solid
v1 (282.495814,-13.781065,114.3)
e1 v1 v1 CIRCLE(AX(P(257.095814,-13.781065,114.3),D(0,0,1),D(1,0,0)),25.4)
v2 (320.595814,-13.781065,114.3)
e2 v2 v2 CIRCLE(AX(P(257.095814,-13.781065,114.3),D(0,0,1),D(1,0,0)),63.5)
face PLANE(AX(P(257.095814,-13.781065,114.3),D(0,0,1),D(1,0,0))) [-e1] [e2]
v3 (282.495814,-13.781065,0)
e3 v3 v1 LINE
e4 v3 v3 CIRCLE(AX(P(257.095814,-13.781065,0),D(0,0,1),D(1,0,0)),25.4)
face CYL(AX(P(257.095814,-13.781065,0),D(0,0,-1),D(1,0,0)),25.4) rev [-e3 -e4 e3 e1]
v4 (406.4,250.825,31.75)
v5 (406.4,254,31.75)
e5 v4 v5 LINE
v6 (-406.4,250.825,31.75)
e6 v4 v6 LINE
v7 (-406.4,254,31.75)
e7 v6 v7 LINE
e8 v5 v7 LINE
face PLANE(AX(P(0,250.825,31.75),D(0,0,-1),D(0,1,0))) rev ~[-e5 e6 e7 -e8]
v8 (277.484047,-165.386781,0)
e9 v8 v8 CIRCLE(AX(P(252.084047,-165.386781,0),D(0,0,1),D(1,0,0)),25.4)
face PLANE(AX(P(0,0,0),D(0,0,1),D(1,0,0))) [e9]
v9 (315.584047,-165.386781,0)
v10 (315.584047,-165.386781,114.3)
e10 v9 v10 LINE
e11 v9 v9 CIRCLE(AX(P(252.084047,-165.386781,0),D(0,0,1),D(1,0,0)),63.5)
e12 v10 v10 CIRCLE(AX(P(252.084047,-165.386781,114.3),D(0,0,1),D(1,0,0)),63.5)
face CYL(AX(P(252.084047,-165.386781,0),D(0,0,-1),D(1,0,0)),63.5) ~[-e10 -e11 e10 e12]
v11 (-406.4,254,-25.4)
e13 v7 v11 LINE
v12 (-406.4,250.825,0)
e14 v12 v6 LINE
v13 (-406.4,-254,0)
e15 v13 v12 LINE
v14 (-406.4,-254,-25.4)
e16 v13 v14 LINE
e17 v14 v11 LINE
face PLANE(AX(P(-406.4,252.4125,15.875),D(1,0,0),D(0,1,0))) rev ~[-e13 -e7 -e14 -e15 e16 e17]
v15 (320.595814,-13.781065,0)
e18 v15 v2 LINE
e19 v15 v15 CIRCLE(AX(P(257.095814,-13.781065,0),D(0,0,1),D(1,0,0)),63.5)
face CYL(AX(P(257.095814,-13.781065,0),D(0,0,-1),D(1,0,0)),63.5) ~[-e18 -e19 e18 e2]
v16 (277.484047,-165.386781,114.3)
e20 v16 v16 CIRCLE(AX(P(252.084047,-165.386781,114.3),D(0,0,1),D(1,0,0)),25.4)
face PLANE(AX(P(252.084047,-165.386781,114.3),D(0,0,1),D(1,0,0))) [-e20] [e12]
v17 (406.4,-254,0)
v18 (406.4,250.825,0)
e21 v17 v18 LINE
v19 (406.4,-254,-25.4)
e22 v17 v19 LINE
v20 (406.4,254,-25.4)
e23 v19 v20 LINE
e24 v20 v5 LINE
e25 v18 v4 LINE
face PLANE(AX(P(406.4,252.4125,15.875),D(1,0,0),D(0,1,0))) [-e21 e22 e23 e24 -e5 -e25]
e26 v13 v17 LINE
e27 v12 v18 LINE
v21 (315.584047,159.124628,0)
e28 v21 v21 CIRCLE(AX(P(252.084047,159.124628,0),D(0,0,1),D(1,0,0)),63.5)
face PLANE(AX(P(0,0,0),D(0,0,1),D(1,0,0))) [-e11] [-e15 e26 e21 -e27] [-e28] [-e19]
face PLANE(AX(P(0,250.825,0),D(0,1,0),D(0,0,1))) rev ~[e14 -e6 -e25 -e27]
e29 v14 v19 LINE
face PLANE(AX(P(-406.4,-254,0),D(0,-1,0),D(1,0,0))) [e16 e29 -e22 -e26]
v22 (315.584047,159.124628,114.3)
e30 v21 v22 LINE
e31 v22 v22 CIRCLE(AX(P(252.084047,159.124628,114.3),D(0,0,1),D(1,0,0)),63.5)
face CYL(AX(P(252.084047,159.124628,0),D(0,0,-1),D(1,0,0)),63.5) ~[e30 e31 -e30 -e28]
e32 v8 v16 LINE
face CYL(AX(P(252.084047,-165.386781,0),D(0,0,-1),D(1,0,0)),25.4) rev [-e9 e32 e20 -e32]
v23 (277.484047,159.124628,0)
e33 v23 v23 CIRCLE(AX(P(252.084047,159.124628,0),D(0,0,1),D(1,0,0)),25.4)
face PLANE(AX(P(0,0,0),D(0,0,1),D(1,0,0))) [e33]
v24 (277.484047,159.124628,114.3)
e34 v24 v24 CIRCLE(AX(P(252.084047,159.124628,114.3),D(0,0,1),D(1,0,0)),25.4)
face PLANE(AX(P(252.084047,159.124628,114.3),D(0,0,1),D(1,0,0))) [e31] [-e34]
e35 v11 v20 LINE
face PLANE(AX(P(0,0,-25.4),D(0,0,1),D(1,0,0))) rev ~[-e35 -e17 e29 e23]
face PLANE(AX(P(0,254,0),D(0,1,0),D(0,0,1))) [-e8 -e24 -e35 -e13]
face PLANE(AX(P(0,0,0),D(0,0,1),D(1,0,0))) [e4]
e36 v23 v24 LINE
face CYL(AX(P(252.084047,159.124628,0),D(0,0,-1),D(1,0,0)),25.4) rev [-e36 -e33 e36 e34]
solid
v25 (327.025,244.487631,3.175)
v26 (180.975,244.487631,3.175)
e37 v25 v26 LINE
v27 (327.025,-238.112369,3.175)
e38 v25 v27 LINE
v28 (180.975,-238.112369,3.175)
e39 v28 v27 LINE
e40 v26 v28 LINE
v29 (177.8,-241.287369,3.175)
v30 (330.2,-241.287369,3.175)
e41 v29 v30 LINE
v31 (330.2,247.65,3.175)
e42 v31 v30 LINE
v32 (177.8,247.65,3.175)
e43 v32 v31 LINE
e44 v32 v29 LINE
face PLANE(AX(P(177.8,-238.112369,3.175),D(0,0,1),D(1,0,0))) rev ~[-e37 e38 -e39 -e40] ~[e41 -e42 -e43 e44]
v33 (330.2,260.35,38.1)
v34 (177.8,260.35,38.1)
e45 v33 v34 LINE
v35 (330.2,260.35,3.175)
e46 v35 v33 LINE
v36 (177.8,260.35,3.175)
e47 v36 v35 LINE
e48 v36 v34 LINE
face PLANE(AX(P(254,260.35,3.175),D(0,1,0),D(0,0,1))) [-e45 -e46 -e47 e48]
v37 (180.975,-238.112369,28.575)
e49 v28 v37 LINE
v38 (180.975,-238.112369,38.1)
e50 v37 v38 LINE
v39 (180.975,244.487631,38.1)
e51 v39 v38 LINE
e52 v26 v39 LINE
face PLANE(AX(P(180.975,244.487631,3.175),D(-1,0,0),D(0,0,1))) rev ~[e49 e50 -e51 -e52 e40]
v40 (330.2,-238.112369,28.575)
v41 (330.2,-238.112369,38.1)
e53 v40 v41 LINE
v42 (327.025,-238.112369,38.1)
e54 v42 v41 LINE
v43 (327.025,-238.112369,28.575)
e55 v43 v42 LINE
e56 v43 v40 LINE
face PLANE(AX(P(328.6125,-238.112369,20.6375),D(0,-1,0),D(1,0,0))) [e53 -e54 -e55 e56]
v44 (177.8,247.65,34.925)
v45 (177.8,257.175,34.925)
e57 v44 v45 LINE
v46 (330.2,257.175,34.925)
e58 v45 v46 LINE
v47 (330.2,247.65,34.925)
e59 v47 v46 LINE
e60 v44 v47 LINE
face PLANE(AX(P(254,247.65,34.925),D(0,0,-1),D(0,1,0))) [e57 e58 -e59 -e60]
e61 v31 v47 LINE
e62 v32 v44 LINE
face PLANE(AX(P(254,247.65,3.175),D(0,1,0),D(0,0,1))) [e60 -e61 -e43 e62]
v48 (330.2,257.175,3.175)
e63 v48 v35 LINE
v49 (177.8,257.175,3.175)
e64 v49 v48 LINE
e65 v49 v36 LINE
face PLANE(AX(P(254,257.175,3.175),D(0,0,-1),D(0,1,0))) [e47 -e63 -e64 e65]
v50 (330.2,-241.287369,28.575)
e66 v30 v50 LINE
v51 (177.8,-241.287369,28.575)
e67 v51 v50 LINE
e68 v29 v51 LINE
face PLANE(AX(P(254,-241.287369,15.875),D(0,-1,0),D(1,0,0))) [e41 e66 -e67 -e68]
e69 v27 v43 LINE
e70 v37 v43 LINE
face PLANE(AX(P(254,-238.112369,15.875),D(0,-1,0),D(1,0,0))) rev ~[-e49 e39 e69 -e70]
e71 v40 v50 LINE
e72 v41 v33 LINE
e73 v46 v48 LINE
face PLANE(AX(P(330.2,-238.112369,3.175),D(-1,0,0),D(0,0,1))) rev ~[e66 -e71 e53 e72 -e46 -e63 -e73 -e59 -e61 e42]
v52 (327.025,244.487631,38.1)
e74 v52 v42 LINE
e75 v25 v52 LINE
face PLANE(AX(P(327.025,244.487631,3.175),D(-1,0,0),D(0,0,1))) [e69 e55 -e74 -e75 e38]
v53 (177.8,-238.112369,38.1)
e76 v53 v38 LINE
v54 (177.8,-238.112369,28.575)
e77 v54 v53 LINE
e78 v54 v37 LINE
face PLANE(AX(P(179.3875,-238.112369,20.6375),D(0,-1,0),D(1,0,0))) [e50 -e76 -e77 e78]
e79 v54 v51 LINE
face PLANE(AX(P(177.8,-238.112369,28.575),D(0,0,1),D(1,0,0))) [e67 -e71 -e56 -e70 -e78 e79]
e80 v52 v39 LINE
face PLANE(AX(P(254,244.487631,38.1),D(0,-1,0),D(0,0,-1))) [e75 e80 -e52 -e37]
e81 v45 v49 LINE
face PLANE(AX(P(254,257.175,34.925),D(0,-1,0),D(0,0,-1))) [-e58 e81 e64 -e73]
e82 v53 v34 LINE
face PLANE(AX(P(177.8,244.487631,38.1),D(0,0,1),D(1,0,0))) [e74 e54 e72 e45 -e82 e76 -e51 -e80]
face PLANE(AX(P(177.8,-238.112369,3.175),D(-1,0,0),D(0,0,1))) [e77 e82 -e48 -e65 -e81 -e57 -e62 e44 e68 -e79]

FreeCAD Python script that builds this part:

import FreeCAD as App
import Part
import Sketcher
from FreeCAD import Vector
Q = App.Units.Quantity

doc = App.newDocument("Part")
body = doc.addObject("PartDesign::Body", "Body")

# Sketch on XY plane
sketch1 = body.newObject("Sketcher::SketchObject", "Sketch")
sketch1.AttachmentSupport = (doc.getObject("XY_Plane"), [""])
sketch1.MapMode = "FlatFace"
sketch1.addGeometry(Part.LineSegment(Vector(-406.4, 254, 0), Vector(-406.4, -254, 0)), False)
sketch1.addGeometry(Part.LineSegment(Vector(-406.4, -254, 0), Vector(406.4, -254, 0)), False)
sketch1.addGeometry(Part.LineSegment(Vector(406.4, -254, 0), Vector(406.4, 254, 0)), False)
sketch1.addGeometry(Part.LineSegment(Vector(406.4, 254, 0), Vector(-406.4, 254, 0)), False)
sketch1.addConstraint(Sketcher.Constraint("Coincident", 0, 2, 1, 1))
sketch1.addConstraint(Sketcher.Constraint("Coincident", 1, 2, 2, 1))
sketch1.addConstraint(Sketcher.Constraint("Coincident", 2, 2, 3, 1))
sketch1.addConstraint(Sketcher.Constraint("Coincident", 3, 2, 0, 1))
sketch1.addConstraint(Sketcher.Constraint("Vertical", 0))
sketch1.addConstraint(Sketcher.Constraint("Horizontal", 1))
sketch1.addConstraint(Sketcher.Constraint("Vertical", 2))
sketch1.addConstraint(Sketcher.Constraint("Horizontal", 3))
sketch1.addConstraint(Sketcher.Constraint("Symmetric", 0, 2, 2, 2, -1, 1))
sketch1.addConstraint(Sketcher.Constraint("DistanceX", 1, 1, 1, 2, Q("32 in")))
sketch1.addConstraint(Sketcher.Constraint("DistanceY", 0, 2, 0, 1, Q("20 in")))
pad1 = body.newObject("PartDesign::Pad", "Pad")
pad1.Profile = sketch1
pad1.Length = Q("1 in")
pad1.Reversed = True

# Sketch on YZ plane
sketch2 = body.newObject("Sketcher::SketchObject", "Sketch001")
sketch2.AttachmentSupport = (doc.getObject("YZ_Plane"), [""])
sketch2.MapMode = "FlatFace"
sketch2.addGeometry(Part.LineSegment(Vector(250.825, 31.75, 0), Vector(250.825, 0, 0)), False)
sketch2.addGeometry(Part.LineSegment(Vector(250.825, 0, 0), Vector(254, 0, 0)), False)
sketch2.addGeometry(Part.LineSegment(Vector(254, 0, 0), Vector(254, 31.75, 0)), False)
sketch2.addGeometry(Part.LineSegment(Vector(254, 31.75, 0), Vector(250.825, 31.75, 0)), False)
sketch2.addConstraint(Sketcher.Constraint("Coincident", 0, 2, 1, 1))
sketch2.addConstraint(Sketcher.Constraint("Coincident", 1, 2, 2, 1))
sketch2.addConstraint(Sketcher.Constraint("Coincident", 2, 2, 3, 1))
sketch2.addConstraint(Sketcher.Constraint("Coincident", 3, 2, 0, 1))
sketch2.addConstraint(Sketcher.Constraint("Vertical", 0))
sketch2.addConstraint(Sketcher.Constraint("Horizontal", 1))
sketch2.addConstraint(Sketcher.Constraint("Vertical", 2))
sketch2.addConstraint(Sketcher.Constraint("Horizontal", 3))
sketch2.addConstraint(Sketcher.Constraint("PointOnObject", 0, 2, -1))
sketch2.addConstraint(Sketcher.Constraint("DistanceX", -1, 1, 1, 2, Q("10 in")))
sketch2.addConstraint(Sketcher.Constraint("DistanceY", 0, 2, 0, 1, Q("1.25 in")))
sketch2.addConstraint(Sketcher.Constraint("DistanceX", 1, 1, 1, 2, Q("0.125 in")))
pad2 = body.newObject("PartDesign::Pad", "Pad001")
pad2.Profile = sketch2
pad2.Length = Q("32 in")
pad2.Midplane = True

# Sketch on XY plane
sketch3 = body.newObject("Sketcher::SketchObject", "Sketch002")
sketch3.AttachmentSupport = (doc.getObject("XY_Plane"), [""])
sketch3.MapMode = "FlatFace"
sketch3.addGeometry(Part.Circle(Vector(252.084047, 159.124628, 0), Vector(0, 0, 1), 63.5), False)
sketch3.addGeometry(Part.Circle(Vector(252.084047, 159.124628, 0), Vector(0, 0, 1), 25.4), False)
sketch3.addGeometry(Part.Circle(Vector(257.095814, -13.781065, 0), Vector(0, 0, 1), 63.5), False)
sketch3.addGeometry(Part.Circle(Vector(257.095814, -13.781065, 0), Vector(0, 0, 1), 25.4), False)
sketch3.addGeometry(Part.Circle(Vector(252.084047, -165.386781, 0), Vector(0, 0, 1), 63.5), False)
sketch3.addGeometry(Part.Circle(Vector(252.084047, -165.386781, 0), Vector(0, 0, 1), 25.4), False)
sketch3.addConstraint(Sketcher.Constraint("Coincident", 1, 3, 0, 3))
sketch3.addConstraint(Sketcher.Constraint("Coincident", 3, 3, 2, 3))
sketch3.addConstraint(Sketcher.Constraint("Coincident", 5, 3, 4, 3))
sketch3.addConstraint(Sketcher.Constraint("Equal", 0, 2))
sketch3.addConstraint(Sketcher.Constraint("Equal", 1, 3))
sketch3.addConstraint(Sketcher.Constraint("Equal", 2, 4))
sketch3.addConstraint(Sketcher.Constraint("Equal", 3, 5))
sketch3.addConstraint(Sketcher.Constraint("Vertical", 1, 3, 4, 3))
sketch3.addConstraint(Sketcher.Constraint("Diameter", 0, Q("5 in")))
sketch3.addConstraint(Sketcher.Constraint("Diameter", 1, Q("2 in")))
sketch3.addConstraint(Sketcher.Constraint("DistanceY", -1, 1, 0, 3, 159.124628))
sketch3.addConstraint(Sketcher.Constraint("DistanceY", 4, 3, -1, 1, 165.386781))
sketch3.addConstraint(Sketcher.Constraint("DistanceX", -1, 1, 0, 3, 252.084047))
sketch3.addConstraint(Sketcher.Constraint("DistanceX", -1, 1, 2, 3, 257.095814))
sketch3.addConstraint(Sketcher.Constraint("DistanceY", 2, 3, -1, 1, 13.781065))
pad3 = body.newObject("PartDesign::Pad", "Pad002")
pad3.Profile = sketch3
pad3.Length = Q("4.5 in")
body2 = doc.addObject("PartDesign::Body", "Body001")

# Sketch on YZ plane
sketch4 = body2.newObject("Sketcher::SketchObject", "Sketch003")
sketch4.AttachmentSupport = (doc.getObject("YZ_Plane001"), [""])
sketch4.MapMode = "FlatFace"
sketch4.AttachmentOffset = App.Placement(Vector(0, 0, 10 * 25.4), App.Rotation())
sketch4.addGeometry(Part.LineSegment(Vector(244.487631, 3.175, 0), Vector(247.65, 3.175, 0)), False)
sketch4.addGeometry(Part.LineSegment(Vector(247.65, 3.175, 0), Vector(247.65, 34.925, 0)), False)
sketch4.addGeometry(Part.LineSegment(Vector(247.65, 34.925, 0), Vector(257.175, 34.925, 0)), False)
sketch4.addGeometry(Part.LineSegment(Vector(257.175, 34.925, 0), Vector(257.175, 3.175, 0)), False)
sketch4.addGeometry(Part.LineSegment(Vector(257.175, 3.175, 0), Vector(260.35, 3.175, 0)), False)
sketch4.addGeometry(Part.LineSegment(Vector(260.35, 3.175, 0), Vector(260.35, 38.1, 0)), False)
sketch4.addGeometry(Part.LineSegment(Vector(260.35, 38.1, 0), Vector(244.487631, 38.1, 0)), False)
sketch4.addGeometry(Part.LineSegment(Vector(244.487631, 38.1, 0), Vector(244.487631, 3.175, 0)), False)
sketch4.addConstraint(Sketcher.Constraint("Coincident", 0, 2, 1, 1))
sketch4.addConstraint(Sketcher.Constraint("Coincident", 1, 2, 2, 1))
sketch4.addConstraint(Sketcher.Constraint("Coincident", 2, 2, 3, 1))
sketch4.addConstraint(Sketcher.Constraint("Coincident", 3, 2, 4, 1))
sketch4.addConstraint(Sketcher.Constraint("Coincident", 4, 2, 5, 1))
sketch4.addConstraint(Sketcher.Constraint("Coincident", 5, 2, 6, 1))
sketch4.addConstraint(Sketcher.Constraint("Coincident", 6, 2, 7, 1))
sketch4.addConstraint(Sketcher.Constraint("Coincident", 7, 2, 0, 1))
sketch4.addConstraint(Sketcher.Constraint("Horizontal", 0))
sketch4.addConstraint(Sketcher.Constraint("Vertical", 1))
sketch4.addConstraint(Sketcher.Constraint("Horizontal", 2))
sketch4.addConstraint(Sketcher.Constraint("Vertical", 3))
sketch4.addConstraint(Sketcher.Constraint("Horizontal", 4))
sketch4.addConstraint(Sketcher.Constraint("Vertical", 5))
sketch4.addConstraint(Sketcher.Constraint("Horizontal", 6))
sketch4.addConstraint(Sketcher.Constraint("Vertical", 7))
sketch4.addConstraint(Sketcher.Constraint("Horizontal", 0, 2, 3, 2))
sketch4.addConstraint(Sketcher.Constraint("DistanceY", 1, 1, 1, 2, Q("1.25 in")))
sketch4.addConstraint(Sketcher.Constraint("DistanceY", -1, 1, 5, 2, Q("1.5 in")))
sketch4.addConstraint(Sketcher.Constraint("DistanceX", 0, 2, 4, 2, Q("0.5 in")))
sketch4.addConstraint(Sketcher.Constraint("DistanceX", 2, 1, 2, 2, Q("0.375 in")))
sketch4.addConstraint(Sketcher.Constraint("DistanceY", 5, 1, 5, 2, Q("1.375 in")))
sketch4.addConstraint(Sketcher.Constraint("DistanceX", -1, 1, 0, 2, Q("9.75 in")))
sketch4.addConstraint(Sketcher.Constraint("DistanceX", 0, 1, 0, 2, 3.162369))
pad4 = body2.newObject("PartDesign::Pad", "Pad003")
pad4.Profile = sketch4
pad4.Length = Q("6 in")
pad4.Midplane = True

# Sketch on XZ plane
sketch5 = body2.newObject("Sketcher::SketchObject", "Sketch004")
sketch5.AttachmentSupport = (doc.getObject("XZ_Plane001"), [""])
sketch5.MapMode = "FlatFace"
sketch5.AttachmentOffset = App.Placement(Vector(0, 0, -244.487631), App.Rotation())
sketch5.addGeometry(Part.LineSegment(Vector(177.8, 38.1, 0), Vector(177.8, 3.175, 0)), False)
sketch5.addGeometry(Part.LineSegment(Vector(177.8, 3.175, 0), Vector(180.975, 3.175, 0)), False)
sketch5.addGeometry(Part.LineSegment(Vector(180.975, 3.175, 0), Vector(180.975, 38.1, 0)), False)
sketch5.addGeometry(Part.LineSegment(Vector(180.975, 38.1, 0), Vector(177.8, 38.1, 0)), False)
sketch5.addGeometry(Part.LineSegment(Vector(327.025, 38.1, 0), Vector(327.025, 3.175, 0)), False)
sketch5.addGeometry(Part.LineSegment(Vector(327.025, 3.175, 0), Vector(330.2, 3.175, 0)), False)
sketch5.addGeometry(Part.LineSegment(Vector(330.2, 3.175, 0), Vector(330.2, 38.1, 0)), False)
sketch5.addGeometry(Part.LineSegment(Vector(330.2, 38.1, 0), Vector(327.025, 38.1, 0)), False)
sketch5.addConstraint(Sketcher.Constraint("Coincident", 0, 2, 1, 1))
sketch5.addConstraint(Sketcher.Constraint("Coincident", 1, 2, 2, 1))
sketch5.addConstraint(Sketcher.Constraint("Coincident", 2, 2, 3, 1))
sketch5.addConstraint(Sketcher.Constraint("Coincident", 3, 2, 0, 1))
sketch5.addConstraint(Sketcher.Constraint("Coincident", 4, 2, 5, 1))
sketch5.addConstraint(Sketcher.Constraint("Coincident", 5, 2, 6, 1))
sketch5.addConstraint(Sketcher.Constraint("Coincident", 6, 2, 7, 1))
sketch5.addConstraint(Sketcher.Constraint("Coincident", 7, 2, 4, 1))
sketch5.addConstraint(Sketcher.Constraint("Vertical", 0))
sketch5.addConstraint(Sketcher.Constraint("Horizontal", 1))
sketch5.addConstraint(Sketcher.Constraint("Vertical", 2))
sketch5.addConstraint(Sketcher.Constraint("Horizontal", 3))
sketch5.addConstraint(Sketcher.Constraint("Vertical", 4))
sketch5.addConstraint(Sketcher.Constraint("Horizontal", 5))
sketch5.addConstraint(Sketcher.Constraint("Vertical", 6))
sketch5.addConstraint(Sketcher.Constraint("Horizontal", 7))
sketch5.addConstraint(Sketcher.Constraint("Horizontal", 1, 2, 4, 2))
sketch5.addConstraint(Sketcher.Constraint("Horizontal", 3, 2, 6, 2))
sketch5.addConstraint(Sketcher.Constraint("Equal", 3, 5))
sketch5.addConstraint(Sketcher.Constraint("DistanceX", -1, 1, 0, 2, Q("7 in")))
sketch5.addConstraint(Sketcher.Constraint("DistanceX", -1, 1, 5, 2, Q("13 in")))
sketch5.addConstraint(Sketcher.Constraint("DistanceY", -1, 1, 2, 2, Q("1.5 in")))
sketch5.addConstraint(Sketcher.Constraint("DistanceX", 1, 1, 1, 2, Q("0.125 in")))
sketch5.addConstraint(Sketcher.Constraint("DistanceY", 0, 2, 0, 1, Q("1.375 in")))
pad5 = body2.newObject("PartDesign::Pad", "Pad004")
pad5.Profile = sketch5
pad5.Length = Q("19 in")

# Sketch on XZ plane
sketch6 = body2.newObject("Sketcher::SketchObject", "Sketch005")
sketch6.AttachmentSupport = (doc.getObject("XZ_Plane001"), [""])
sketch6.MapMode = "FlatFace"
sketch6.AttachmentOffset = App.Placement(Vector(0, 0, 238.112369), App.Rotation())
sketch6.addGeometry(Part.LineSegment(Vector(177.8, 28.575, 0), Vector(177.8, 3.175, 0)), False)
sketch6.addGeometry(Part.LineSegment(Vector(177.8, 3.175, 0), Vector(330.2, 3.175, 0)), False)
sketch6.addGeometry(Part.LineSegment(Vector(330.2, 3.175, 0), Vector(330.2, 28.575, 0)), False)
sketch6.addGeometry(Part.LineSegment(Vector(330.2, 28.575, 0), Vector(177.8, 28.575, 0)), False)
sketch6.addConstraint(Sketcher.Constraint("Coincident", 0, 2, 1, 1))
sketch6.addConstraint(Sketcher.Constraint("Coincident", 1, 2, 2, 1))
sketch6.addConstraint(Sketcher.Constraint("Coincident", 2, 2, 3, 1))
sketch6.addConstraint(Sketcher.Constraint("Coincident", 3, 2, 0, 1))
sketch6.addConstraint(Sketcher.Constraint("Vertical", 0))
sketch6.addConstraint(Sketcher.Constraint("Horizontal", 1))
sketch6.addConstraint(Sketcher.Constraint("Vertical", 2))
sketch6.addConstraint(Sketcher.Constraint("Horizontal", 3))
sketch6.addConstraint(Sketcher.Constraint("DistanceX", 1, 1, 1, 2, Q("6 in")))
sketch6.addConstraint(Sketcher.Constraint("DistanceY", 0, 2, 0, 1, Q("1 in")))
sketch6.addConstraint(Sketcher.Constraint("DistanceX", -1, 1, 0, 2, Q("7 in")))
sketch6.addConstraint(Sketcher.Constraint("DistanceY", -1, 1, 0, 2, Q("0.125 in")))
pad6 = body2.newObject("PartDesign::Pad", "Pad005")
pad6.Profile = sketch6
pad6.Length = Q("0.125 in")

doc.recompute()
